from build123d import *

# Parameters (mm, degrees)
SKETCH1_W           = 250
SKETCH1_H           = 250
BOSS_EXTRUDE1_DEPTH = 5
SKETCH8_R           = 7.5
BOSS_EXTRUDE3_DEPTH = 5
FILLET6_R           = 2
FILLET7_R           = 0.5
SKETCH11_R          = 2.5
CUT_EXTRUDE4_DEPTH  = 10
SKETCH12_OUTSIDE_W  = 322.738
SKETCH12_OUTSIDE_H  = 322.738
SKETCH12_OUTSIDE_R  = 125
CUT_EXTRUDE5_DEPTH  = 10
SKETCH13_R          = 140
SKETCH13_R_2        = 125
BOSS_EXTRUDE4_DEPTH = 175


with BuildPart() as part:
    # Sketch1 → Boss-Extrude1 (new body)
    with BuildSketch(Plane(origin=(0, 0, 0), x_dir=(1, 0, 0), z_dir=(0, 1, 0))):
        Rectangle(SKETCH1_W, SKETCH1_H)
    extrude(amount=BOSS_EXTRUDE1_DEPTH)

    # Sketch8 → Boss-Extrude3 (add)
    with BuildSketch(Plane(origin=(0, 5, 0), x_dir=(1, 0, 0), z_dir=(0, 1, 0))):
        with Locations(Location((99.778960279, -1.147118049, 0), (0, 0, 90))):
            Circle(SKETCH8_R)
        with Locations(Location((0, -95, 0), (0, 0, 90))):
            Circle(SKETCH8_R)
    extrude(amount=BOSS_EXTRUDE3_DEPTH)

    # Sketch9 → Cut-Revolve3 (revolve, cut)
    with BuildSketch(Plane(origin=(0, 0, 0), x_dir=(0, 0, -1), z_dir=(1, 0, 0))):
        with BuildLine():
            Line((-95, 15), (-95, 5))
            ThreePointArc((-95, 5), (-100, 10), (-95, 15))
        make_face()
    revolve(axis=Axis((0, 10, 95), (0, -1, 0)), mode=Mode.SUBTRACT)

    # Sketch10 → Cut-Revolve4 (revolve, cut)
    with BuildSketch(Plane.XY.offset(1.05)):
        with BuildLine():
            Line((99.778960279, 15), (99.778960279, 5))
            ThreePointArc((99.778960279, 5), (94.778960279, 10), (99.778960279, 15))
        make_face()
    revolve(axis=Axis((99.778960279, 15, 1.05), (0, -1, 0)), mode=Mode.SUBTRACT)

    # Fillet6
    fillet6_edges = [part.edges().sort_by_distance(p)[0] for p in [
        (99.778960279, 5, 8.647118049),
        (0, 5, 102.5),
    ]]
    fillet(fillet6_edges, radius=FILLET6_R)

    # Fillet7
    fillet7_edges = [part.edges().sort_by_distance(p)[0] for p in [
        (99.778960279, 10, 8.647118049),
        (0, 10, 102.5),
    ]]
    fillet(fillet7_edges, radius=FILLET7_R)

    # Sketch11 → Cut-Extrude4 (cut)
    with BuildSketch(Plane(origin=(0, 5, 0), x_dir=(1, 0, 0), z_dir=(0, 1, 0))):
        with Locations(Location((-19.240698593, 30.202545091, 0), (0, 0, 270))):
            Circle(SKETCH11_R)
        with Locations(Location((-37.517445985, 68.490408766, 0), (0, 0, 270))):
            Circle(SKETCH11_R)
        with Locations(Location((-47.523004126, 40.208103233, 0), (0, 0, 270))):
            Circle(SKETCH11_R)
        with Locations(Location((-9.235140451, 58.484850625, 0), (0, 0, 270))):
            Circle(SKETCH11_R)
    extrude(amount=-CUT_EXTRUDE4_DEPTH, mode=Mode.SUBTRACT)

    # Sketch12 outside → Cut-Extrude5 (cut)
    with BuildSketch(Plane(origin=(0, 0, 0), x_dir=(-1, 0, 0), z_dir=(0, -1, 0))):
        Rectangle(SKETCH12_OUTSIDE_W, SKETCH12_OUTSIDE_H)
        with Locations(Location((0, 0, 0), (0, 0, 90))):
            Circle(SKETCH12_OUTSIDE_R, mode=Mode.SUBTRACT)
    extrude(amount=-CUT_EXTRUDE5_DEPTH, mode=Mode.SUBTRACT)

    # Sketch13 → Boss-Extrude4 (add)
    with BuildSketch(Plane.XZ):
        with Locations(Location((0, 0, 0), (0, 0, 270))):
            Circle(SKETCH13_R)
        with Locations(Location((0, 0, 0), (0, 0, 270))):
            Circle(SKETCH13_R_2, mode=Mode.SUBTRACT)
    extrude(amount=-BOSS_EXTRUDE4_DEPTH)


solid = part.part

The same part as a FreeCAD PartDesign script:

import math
import FreeCAD as App
import Part
import Sketcher
from FreeCAD import Vector


def edges_at(feature, points):
    """Names of the edges that pass closest to the given points."""
    edges = feature.Shape.Edges
    near = lambda p: min(range(len(edges)), key=lambda i: edges[i].distToShape(Part.Vertex(*p))[0])
    return sorted({f"Edge{near(p) + 1}" for p in points})


def add_polygon(sketch, points):
    """Adds a closed chain of lines whose ends are joined by coincident constraints."""
    first, n = sketch.GeometryCount, len(points)
    for a, b in zip(points, points[1:] + points[:1]):
        sketch.addGeometry(Part.LineSegment(App.Vector(*a, 0), App.Vector(*b, 0)), False)
    for i in range(n):
        sketch.addConstraint(Sketcher.Constraint("Coincident", first + i, 2, first + (i + 1) % n, 1))

doc = App.newDocument("Part")
body = doc.addObject("PartDesign::Body", "Body")

sketch1 = body.newObject("Sketcher::SketchObject", "Sketch")
sketch1.AttachmentSupport = (doc.getObject("XZ_Plane"), [""])
sketch1.MapMode = "FlatFace"
add_polygon(sketch1, [(-125, -125), (-125, 125), (125, 125), (125, -125)])
sketch1.addConstraint([
    Sketcher.Constraint("Vertical", 0),
    Sketcher.Constraint("Horizontal", 1),
    Sketcher.Constraint("Vertical", 2),
    Sketcher.Constraint("Horizontal", 3),
    Sketcher.Constraint("Symmetric", 0, 2, 2, 2, -1, 1),
    Sketcher.Constraint("Equal", 3, 0),
    Sketcher.Constraint("DistanceX", 1, 1, 1, 2, 250.0),
])
pad1 = body.newObject("PartDesign::Pad", "Pad")
pad1.Profile = sketch1
pad1.Length = 5
pad1.Reversed = True

sketch2 = body.newObject("Sketcher::SketchObject", "Sketch001")
sketch2.AttachmentSupport = (doc.getObject("XZ_Plane"), [""])
sketch2.MapMode = "FlatFace"
sketch2.AttachmentOffset = App.Placement(Vector(0, 0, -5), App.Rotation())
sketch2.addGeometry([
    Part.Circle(Vector(99.77896, 1.147118, 0), Vector(0, 0, 1), 7.5),
    Part.Circle(Vector(0, 95, 0), Vector(0, 0, 1), 7.5),
], False)
sketch2.addConstraint([
    Sketcher.Constraint("Equal", 0, 1),
    Sketcher.Constraint("PointOnObject", 1, 3, -2),
    Sketcher.Constraint("Diameter", 0, 15.0),
    Sketcher.Constraint("DistanceY", -1, 1, 1, 3, 95.0),
    Sketcher.Constraint("DistanceX", -1, 1, 0, 3, 99.77896),
    Sketcher.Constraint("DistanceY", -1, 1, 0, 3, 1.147118),
])
pad2 = body.newObject("PartDesign::Pad", "Pad001")
pad2.Profile = sketch2
pad2.Length = 5
pad2.Reversed = True

sketch3 = body.newObject("Sketcher::SketchObject", "Sketch002")
sketch3.AttachmentSupport = (doc.getObject("YZ_Plane"), [""])
sketch3.MapMode = "FlatFace"
sketch3.addGeometry([
    Part.LineSegment(Vector(5, 95, 0), Vector(15, 95, 0)),
    Part.ArcOfCircle(Part.Circle(Vector(10, 95, 0), Vector(0, 0, 1), 5), math.radians(0), math.radians(180)),
], False)
sketch3.addGeometry(Part.LineSegment(Vector(15, 95, 0), Vector(5, 95, 0)), True)
sketch3.addConstraint([
    Sketcher.Constraint("Coincident", 0, 1, 1, 2),
    Sketcher.Constraint("Coincident", 1, 1, 0, 2),
    Sketcher.Constraint("Horizontal", 0),
    Sketcher.Constraint("Horizontal", 2),
    Sketcher.Constraint("Coincident", 2, 1, 1, 1),
    Sketcher.Constraint("Horizontal", 1, 3, 0, 1),
    Sketcher.Constraint("Equal", 0, 2),
    Sketcher.Constraint("Radius", 1, 5.0),
    Sketcher.Constraint("DistanceX", -1, 1, 1, 3, 10.0),
    Sketcher.Constraint("DistanceY", -1, 1, 1, 3, 95.0),
])
groove = body.newObject("PartDesign::Groove", "Groove")
groove.Profile = sketch3
groove.ReferenceAxis = (sketch3, ["Axis0"])
groove.Angle = 360

sketch4 = body.newObject("Sketcher::SketchObject", "Sketch003")
sketch4.AttachmentSupport = (doc.getObject("XY_Plane"), [""])
sketch4.MapMode = "FlatFace"
sketch4.AttachmentOffset = App.Placement(Vector(0, 0, 1.05), App.Rotation())
sketch4.addGeometry([
    Part.LineSegment(Vector(99.77896, 5, 0), Vector(99.77896, 15, 0)),
    Part.ArcOfCircle(Part.Circle(Vector(99.77896, 10, 0), Vector(0, 0, 1), 5), math.radians(90), math.radians(270)),
], False)
sketch4.addGeometry(Part.LineSegment(Vector(99.77896, 15, 0), Vector(99.77896, 5, 0)), True)
sketch4.addConstraint([
    Sketcher.Constraint("Coincident", 0, 1, 1, 2),
    Sketcher.Constraint("Coincident", 1, 1, 0, 2),
    Sketcher.Constraint("Vertical", 0),
    Sketcher.Constraint("Vertical", 2),
    Sketcher.Constraint("Coincident", 2, 1, 1, 1),
    Sketcher.Constraint("Vertical", 1, 3, 0, 1),
    Sketcher.Constraint("Equal", 0, 2),
    Sketcher.Constraint("Radius", 1, 5.0),
    Sketcher.Constraint("DistanceY", -1, 1, 1, 3, 10.0),
    Sketcher.Constraint("DistanceX", -1, 1, 1, 3, 99.77896),
])
groove2 = body.newObject("PartDesign::Groove", "Groove001")
groove2.Profile = sketch4
groove2.ReferenceAxis = (sketch4, ["Axis0"])
groove2.Angle = 360
doc.recompute()

fillet = body.newObject("PartDesign::Fillet", "Fillet")
fillet.Base = (groove2, edges_at(groove2, [(99.779, 5, 8.647), (0, 5, 102.5)]))
fillet.Radius = 2
doc.recompute()

fillet2 = body.newObject("PartDesign::Fillet", "Fillet001")
fillet2.Base = (fillet, edges_at(fillet, [(99.779, 10, 8.647), (0, 10, 102.5)]))
fillet2.Radius = 0.5

sketch5 = body.newObject("Sketcher::SketchObject", "Sketch004")
sketch5.AttachmentSupport = (doc.getObject("XZ_Plane"), [""])
sketch5.MapMode = "FlatFace"
sketch5.AttachmentOffset = App.Placement(Vector(0, 0, -5), App.Rotation())
sketch5.addGeometry([
    Part.Circle(Vector(-19.240699, -30.202545, 0), Vector(0, 0, 1), 2.5),
    Part.Circle(Vector(-37.517446, -68.490409, 0), Vector(0, 0, 1), 2.5),
    Part.Circle(Vector(-47.523004, -40.208103, 0), Vector(0, 0, 1), 2.5),
    Part.Circle(Vector(-9.23514, -58.484851, 0), Vector(0, 0, 1), 2.5),
], False)
sketch5.addConstraint([
    Sketcher.Constraint("Equal", 0, 1),
    Sketcher.Constraint("Equal", 1, 2),
    Sketcher.Constraint("Equal", 2, 3),
    Sketcher.Constraint("Diameter", 0, 5.0),
    Sketcher.Constraint("DistanceX", 0, 3, -1, 1, 19.240699),
    Sketcher.Constraint("DistanceY", 1, 3, -1, 1, 68.490409),
    Sketcher.Constraint("DistanceX", 3, 3, -1, 1, 9.23514),
    Sketcher.Constraint("DistanceY", 3, 3, -1, 1, 58.484851),
    Sketcher.Constraint("DistanceX", 2, 3, 1, 3, 10.005558),
    Sketcher.Constraint("DistanceY", 2, 3, 0, 3, 10.005558),
    Sketcher.Constraint("DistanceY", 0, 3, -1, 1, 30.202545),
    Sketcher.Constraint("DistanceX", 1, 3, -1, 1, 37.517446),
])
pocket1 = body.newObject("PartDesign::Pocket", "Pocket")
pocket1.Profile = sketch5
pocket1.Length = 10
pocket1.Reversed = True

sketch6 = body.newObject("Sketcher::SketchObject", "Sketch005")
sketch6.AttachmentSupport = (doc.getObject("XZ_Plane"), [""])
sketch6.MapMode = "FlatFace"
add_polygon(sketch6, [(161.369, -161.369), (161.369, 161.369), (-161.369, 161.369), (-161.369, -161.369)])
sketch6.addGeometry(Part.Circle(Vector(0, 0, 0), Vector(0, 0, 1), 125), False)
sketch6.addConstraint([
    Sketcher.Constraint("Vertical", 0),
    Sketcher.Constraint("Horizontal", 1),
    Sketcher.Constraint("Vertical", 2),
    Sketcher.Constraint("Horizontal", 3),
    Sketcher.Constraint("Coincident", 4, 3, -1, 1),
    Sketcher.Constraint("Symmetric", 0, 2, 2, 2, -1, 1),
    Sketcher.Constraint("Equal", 3, 0),
    Sketcher.Constraint("Diameter", 4, 250.0),
    Sketcher.Constraint("DistanceX", 1, 2, 1, 1, 322.738),
])
pocket2 = body.newObject("PartDesign::Pocket", "Pocket001")
pocket2.Profile = sketch6
pocket2.Length = 10

sketch7 = body.newObject("Sketcher::SketchObject", "Sketch006")
sketch7.AttachmentSupport = (doc.getObject("XZ_Plane"), [""])
sketch7.MapMode = "FlatFace"
sketch7.addGeometry([
    Part.Circle(Vector(0, 0, 0), Vector(0, 0, 1), 140),
    Part.Circle(Vector(0, 0, 0), Vector(0, 0, 1), 125),
], False)
sketch7.addConstraint([
    Sketcher.Constraint("Coincident", 0, 3, -1, 1),
    Sketcher.Constraint("Coincident", 1, 3, -1, 1),
    Sketcher.Constraint("Diameter", 0, 280.0),
    Sketcher.Constraint("Diameter", 1, 250.0),
])
pad3 = body.newObject("PartDesign::Pad", "Pad002")
pad3.Profile = sketch7
pad3.Length = 175
pad3.Reversed = True

doc.recompute()
